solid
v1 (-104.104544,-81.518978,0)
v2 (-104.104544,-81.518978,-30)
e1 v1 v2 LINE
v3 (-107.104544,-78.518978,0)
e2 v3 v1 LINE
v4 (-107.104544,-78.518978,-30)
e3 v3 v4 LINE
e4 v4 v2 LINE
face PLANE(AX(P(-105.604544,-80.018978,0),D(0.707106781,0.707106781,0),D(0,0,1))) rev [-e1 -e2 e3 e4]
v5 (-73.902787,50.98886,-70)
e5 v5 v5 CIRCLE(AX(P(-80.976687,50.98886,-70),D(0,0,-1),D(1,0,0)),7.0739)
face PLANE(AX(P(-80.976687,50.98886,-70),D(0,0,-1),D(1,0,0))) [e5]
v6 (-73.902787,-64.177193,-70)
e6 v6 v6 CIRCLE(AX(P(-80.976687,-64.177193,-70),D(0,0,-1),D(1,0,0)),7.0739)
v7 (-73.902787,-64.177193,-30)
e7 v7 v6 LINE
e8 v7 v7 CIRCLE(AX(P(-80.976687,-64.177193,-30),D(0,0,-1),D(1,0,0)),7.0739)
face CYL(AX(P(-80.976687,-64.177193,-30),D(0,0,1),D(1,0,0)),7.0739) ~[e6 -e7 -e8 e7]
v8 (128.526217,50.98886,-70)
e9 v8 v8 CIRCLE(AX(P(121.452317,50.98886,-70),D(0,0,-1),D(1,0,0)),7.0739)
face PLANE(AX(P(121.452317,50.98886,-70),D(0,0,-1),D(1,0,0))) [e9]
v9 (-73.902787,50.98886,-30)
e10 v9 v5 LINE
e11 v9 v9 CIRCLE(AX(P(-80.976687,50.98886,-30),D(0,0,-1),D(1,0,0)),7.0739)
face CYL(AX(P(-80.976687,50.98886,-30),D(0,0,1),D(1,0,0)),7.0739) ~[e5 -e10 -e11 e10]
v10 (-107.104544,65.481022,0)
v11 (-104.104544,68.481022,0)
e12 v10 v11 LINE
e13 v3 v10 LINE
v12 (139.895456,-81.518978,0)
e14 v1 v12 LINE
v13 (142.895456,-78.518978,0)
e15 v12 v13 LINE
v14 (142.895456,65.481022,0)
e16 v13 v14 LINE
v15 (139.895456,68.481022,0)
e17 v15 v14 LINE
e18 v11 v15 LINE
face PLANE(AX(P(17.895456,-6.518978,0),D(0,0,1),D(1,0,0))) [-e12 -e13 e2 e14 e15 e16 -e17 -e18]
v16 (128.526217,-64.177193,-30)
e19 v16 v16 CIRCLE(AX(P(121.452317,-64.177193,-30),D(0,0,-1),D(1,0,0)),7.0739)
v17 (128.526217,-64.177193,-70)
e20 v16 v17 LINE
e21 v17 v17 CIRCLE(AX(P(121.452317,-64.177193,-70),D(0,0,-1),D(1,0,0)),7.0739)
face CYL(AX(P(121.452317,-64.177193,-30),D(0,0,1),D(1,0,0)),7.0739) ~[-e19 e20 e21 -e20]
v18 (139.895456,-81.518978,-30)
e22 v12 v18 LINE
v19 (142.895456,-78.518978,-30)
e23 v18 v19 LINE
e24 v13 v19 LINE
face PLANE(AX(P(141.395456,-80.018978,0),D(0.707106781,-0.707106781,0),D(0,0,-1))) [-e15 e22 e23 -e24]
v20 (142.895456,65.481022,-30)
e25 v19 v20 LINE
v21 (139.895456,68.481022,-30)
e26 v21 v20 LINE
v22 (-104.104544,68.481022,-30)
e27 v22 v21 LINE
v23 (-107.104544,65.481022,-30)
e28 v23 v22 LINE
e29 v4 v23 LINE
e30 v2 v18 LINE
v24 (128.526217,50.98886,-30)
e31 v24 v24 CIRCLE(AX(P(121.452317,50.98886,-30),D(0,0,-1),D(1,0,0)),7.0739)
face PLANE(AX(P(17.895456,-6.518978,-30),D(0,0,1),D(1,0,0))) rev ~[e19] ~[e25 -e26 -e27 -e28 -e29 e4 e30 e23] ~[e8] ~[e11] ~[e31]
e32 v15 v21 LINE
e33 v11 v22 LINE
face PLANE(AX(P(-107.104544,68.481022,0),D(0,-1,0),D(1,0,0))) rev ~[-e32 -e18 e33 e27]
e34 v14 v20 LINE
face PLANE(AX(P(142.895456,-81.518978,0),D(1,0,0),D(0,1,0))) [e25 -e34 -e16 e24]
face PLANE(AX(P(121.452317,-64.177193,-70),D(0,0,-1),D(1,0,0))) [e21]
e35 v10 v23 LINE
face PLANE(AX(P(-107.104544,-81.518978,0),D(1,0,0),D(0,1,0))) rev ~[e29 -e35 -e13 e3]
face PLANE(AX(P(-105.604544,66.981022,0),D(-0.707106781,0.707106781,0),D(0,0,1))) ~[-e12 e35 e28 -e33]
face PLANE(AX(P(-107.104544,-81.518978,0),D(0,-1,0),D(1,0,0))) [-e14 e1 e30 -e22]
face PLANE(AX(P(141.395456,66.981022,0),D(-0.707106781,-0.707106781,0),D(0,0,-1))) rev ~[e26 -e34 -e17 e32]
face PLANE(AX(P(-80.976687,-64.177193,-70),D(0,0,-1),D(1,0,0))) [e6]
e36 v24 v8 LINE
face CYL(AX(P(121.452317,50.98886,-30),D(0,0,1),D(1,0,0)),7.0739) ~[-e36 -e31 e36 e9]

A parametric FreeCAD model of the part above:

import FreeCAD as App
import Part
import Sketcher
from FreeCAD import Vector


def edges_at(feature, points):
    """Names of the edges that pass closest to the given points."""
    edges = feature.Shape.Edges
    near = lambda p: min(range(len(edges)), key=lambda i: edges[i].distToShape(Part.Vertex(*p))[0])
    return sorted({f"Edge{near(p) + 1}" for p in points})


def add_polygon(sketch, points):
    """Adds a closed chain of lines whose ends are joined by coincident constraints."""
    first, n = sketch.GeometryCount, len(points)
    for a, b in zip(points, points[1:] + points[:1]):
        sketch.addGeometry(Part.LineSegment(App.Vector(*a, 0), App.Vector(*b, 0)), False)
    for i in range(n):
        sketch.addConstraint(Sketcher.Constraint("Coincident", first + i, 2, first + (i + 1) % n, 1))

doc = App.newDocument("Part")
body = doc.addObject("PartDesign::Body", "Body")

# Sketch on XY plane
sketch1 = body.newObject("Sketcher::SketchObject", "Sketch")
sketch1.AttachmentSupport = (doc.getObject("XY_Plane"), [""])
sketch1.MapMode = "FlatFace"
add_polygon(sketch1, [(-107.104544, 68.481022), (-107.104544, -81.518978), (142.895456, -81.518978), (142.895456, 68.481022)])  # lines 0-3
sketch1.addConstraint(Sketcher.Constraint("Vertical", 0))
sketch1.addConstraint(Sketcher.Constraint("Horizontal", 1))
sketch1.addConstraint(Sketcher.Constraint("Vertical", 2))
sketch1.addConstraint(Sketcher.Constraint("Horizontal", 3))
sketch1.addConstraint(Sketcher.Constraint("DistanceX", 1, 1, 1, 2, 250.0))
sketch1.addConstraint(Sketcher.Constraint("DistanceY", 0, 2, 0, 1, 150.0))
sketch1.addConstraint(Sketcher.Constraint("DistanceY", 0, 2, -1, 1, 81.518978))
sketch1.addConstraint(Sketcher.Constraint("DistanceX", 0, 2, -1, 1, 107.104544))
pad1 = body.newObject("PartDesign::Pad", "Pad")
pad1.Profile = sketch1
pad1.Length = 30
pad1.Reversed = True

# Sketch on XY plane
sketch2 = body.newObject("Sketcher::SketchObject", "Sketch001")
sketch2.AttachmentSupport = (doc.getObject("XY_Plane"), [""])
sketch2.MapMode = "FlatFace"
sketch2.AttachmentOffset = App.Placement(Vector(0, 0, -30), App.Rotation())
sketch2.addGeometry(Part.Circle(Vector(-80.976687, -64.177193, 0), Vector(0, 0, 1), 7.0739), False)
sketch2.addGeometry(Part.Circle(Vector(121.452317, -64.177193, 0), Vector(0, 0, 1), 7.0739), False)
sketch2.addGeometry(Part.Circle(Vector(121.452317, 50.98886, 0), Vector(0, 0, 1), 7.0739), False)
sketch2.addGeometry(Part.Circle(Vector(-80.976687, 50.98886, 0), Vector(0, 0, 1), 7.0739), False)
sketch2.addConstraint(Sketcher.Constraint("Equal", 0, 1))
sketch2.addConstraint(Sketcher.Constraint("Equal", 1, 2))
sketch2.addConstraint(Sketcher.Constraint("Equal", 2, 3))
sketch2.addConstraint(Sketcher.Constraint("Horizontal", 0, 3, 1, 3))
sketch2.addConstraint(Sketcher.Constraint("Horizontal", 2, 3, 3, 3))
sketch2.addConstraint(Sketcher.Constraint("Vertical", 1, 3, 2, 3))
sketch2.addConstraint(Sketcher.Constraint("Vertical", 0, 3, 3, 3))
sketch2.addConstraint(Sketcher.Constraint("Diameter", 0, 14.1478))
sketch2.addConstraint(Sketcher.Constraint("DistanceY", -1, 1, 2, 3, 50.98886))
sketch2.addConstraint(Sketcher.Constraint("DistanceX", 0, 3, -1, 1, 80.976687))
sketch2.addConstraint(Sketcher.Constraint("DistanceY", 0, 3, -1, 1, 64.177193))
sketch2.addConstraint(Sketcher.Constraint("DistanceX", -1, 1, 1, 3, 121.452317))
pad2 = body.newObject("PartDesign::Pad", "Pad001")
pad2.Profile = sketch2
pad2.Length = 40
pad2.Reversed = True
doc.recompute()

chamfer = body.newObject("PartDesign::Chamfer", "Chamfer")
chamfer.Base = (pad2, edges_at(pad2, [
    (-107.105, 68.481, -15),
    (142.895, 68.481, -15),
    (142.895, -81.519, -15),
    (-107.105, -81.519, -15),
]))
chamfer.Size = 3

doc.recompute()
